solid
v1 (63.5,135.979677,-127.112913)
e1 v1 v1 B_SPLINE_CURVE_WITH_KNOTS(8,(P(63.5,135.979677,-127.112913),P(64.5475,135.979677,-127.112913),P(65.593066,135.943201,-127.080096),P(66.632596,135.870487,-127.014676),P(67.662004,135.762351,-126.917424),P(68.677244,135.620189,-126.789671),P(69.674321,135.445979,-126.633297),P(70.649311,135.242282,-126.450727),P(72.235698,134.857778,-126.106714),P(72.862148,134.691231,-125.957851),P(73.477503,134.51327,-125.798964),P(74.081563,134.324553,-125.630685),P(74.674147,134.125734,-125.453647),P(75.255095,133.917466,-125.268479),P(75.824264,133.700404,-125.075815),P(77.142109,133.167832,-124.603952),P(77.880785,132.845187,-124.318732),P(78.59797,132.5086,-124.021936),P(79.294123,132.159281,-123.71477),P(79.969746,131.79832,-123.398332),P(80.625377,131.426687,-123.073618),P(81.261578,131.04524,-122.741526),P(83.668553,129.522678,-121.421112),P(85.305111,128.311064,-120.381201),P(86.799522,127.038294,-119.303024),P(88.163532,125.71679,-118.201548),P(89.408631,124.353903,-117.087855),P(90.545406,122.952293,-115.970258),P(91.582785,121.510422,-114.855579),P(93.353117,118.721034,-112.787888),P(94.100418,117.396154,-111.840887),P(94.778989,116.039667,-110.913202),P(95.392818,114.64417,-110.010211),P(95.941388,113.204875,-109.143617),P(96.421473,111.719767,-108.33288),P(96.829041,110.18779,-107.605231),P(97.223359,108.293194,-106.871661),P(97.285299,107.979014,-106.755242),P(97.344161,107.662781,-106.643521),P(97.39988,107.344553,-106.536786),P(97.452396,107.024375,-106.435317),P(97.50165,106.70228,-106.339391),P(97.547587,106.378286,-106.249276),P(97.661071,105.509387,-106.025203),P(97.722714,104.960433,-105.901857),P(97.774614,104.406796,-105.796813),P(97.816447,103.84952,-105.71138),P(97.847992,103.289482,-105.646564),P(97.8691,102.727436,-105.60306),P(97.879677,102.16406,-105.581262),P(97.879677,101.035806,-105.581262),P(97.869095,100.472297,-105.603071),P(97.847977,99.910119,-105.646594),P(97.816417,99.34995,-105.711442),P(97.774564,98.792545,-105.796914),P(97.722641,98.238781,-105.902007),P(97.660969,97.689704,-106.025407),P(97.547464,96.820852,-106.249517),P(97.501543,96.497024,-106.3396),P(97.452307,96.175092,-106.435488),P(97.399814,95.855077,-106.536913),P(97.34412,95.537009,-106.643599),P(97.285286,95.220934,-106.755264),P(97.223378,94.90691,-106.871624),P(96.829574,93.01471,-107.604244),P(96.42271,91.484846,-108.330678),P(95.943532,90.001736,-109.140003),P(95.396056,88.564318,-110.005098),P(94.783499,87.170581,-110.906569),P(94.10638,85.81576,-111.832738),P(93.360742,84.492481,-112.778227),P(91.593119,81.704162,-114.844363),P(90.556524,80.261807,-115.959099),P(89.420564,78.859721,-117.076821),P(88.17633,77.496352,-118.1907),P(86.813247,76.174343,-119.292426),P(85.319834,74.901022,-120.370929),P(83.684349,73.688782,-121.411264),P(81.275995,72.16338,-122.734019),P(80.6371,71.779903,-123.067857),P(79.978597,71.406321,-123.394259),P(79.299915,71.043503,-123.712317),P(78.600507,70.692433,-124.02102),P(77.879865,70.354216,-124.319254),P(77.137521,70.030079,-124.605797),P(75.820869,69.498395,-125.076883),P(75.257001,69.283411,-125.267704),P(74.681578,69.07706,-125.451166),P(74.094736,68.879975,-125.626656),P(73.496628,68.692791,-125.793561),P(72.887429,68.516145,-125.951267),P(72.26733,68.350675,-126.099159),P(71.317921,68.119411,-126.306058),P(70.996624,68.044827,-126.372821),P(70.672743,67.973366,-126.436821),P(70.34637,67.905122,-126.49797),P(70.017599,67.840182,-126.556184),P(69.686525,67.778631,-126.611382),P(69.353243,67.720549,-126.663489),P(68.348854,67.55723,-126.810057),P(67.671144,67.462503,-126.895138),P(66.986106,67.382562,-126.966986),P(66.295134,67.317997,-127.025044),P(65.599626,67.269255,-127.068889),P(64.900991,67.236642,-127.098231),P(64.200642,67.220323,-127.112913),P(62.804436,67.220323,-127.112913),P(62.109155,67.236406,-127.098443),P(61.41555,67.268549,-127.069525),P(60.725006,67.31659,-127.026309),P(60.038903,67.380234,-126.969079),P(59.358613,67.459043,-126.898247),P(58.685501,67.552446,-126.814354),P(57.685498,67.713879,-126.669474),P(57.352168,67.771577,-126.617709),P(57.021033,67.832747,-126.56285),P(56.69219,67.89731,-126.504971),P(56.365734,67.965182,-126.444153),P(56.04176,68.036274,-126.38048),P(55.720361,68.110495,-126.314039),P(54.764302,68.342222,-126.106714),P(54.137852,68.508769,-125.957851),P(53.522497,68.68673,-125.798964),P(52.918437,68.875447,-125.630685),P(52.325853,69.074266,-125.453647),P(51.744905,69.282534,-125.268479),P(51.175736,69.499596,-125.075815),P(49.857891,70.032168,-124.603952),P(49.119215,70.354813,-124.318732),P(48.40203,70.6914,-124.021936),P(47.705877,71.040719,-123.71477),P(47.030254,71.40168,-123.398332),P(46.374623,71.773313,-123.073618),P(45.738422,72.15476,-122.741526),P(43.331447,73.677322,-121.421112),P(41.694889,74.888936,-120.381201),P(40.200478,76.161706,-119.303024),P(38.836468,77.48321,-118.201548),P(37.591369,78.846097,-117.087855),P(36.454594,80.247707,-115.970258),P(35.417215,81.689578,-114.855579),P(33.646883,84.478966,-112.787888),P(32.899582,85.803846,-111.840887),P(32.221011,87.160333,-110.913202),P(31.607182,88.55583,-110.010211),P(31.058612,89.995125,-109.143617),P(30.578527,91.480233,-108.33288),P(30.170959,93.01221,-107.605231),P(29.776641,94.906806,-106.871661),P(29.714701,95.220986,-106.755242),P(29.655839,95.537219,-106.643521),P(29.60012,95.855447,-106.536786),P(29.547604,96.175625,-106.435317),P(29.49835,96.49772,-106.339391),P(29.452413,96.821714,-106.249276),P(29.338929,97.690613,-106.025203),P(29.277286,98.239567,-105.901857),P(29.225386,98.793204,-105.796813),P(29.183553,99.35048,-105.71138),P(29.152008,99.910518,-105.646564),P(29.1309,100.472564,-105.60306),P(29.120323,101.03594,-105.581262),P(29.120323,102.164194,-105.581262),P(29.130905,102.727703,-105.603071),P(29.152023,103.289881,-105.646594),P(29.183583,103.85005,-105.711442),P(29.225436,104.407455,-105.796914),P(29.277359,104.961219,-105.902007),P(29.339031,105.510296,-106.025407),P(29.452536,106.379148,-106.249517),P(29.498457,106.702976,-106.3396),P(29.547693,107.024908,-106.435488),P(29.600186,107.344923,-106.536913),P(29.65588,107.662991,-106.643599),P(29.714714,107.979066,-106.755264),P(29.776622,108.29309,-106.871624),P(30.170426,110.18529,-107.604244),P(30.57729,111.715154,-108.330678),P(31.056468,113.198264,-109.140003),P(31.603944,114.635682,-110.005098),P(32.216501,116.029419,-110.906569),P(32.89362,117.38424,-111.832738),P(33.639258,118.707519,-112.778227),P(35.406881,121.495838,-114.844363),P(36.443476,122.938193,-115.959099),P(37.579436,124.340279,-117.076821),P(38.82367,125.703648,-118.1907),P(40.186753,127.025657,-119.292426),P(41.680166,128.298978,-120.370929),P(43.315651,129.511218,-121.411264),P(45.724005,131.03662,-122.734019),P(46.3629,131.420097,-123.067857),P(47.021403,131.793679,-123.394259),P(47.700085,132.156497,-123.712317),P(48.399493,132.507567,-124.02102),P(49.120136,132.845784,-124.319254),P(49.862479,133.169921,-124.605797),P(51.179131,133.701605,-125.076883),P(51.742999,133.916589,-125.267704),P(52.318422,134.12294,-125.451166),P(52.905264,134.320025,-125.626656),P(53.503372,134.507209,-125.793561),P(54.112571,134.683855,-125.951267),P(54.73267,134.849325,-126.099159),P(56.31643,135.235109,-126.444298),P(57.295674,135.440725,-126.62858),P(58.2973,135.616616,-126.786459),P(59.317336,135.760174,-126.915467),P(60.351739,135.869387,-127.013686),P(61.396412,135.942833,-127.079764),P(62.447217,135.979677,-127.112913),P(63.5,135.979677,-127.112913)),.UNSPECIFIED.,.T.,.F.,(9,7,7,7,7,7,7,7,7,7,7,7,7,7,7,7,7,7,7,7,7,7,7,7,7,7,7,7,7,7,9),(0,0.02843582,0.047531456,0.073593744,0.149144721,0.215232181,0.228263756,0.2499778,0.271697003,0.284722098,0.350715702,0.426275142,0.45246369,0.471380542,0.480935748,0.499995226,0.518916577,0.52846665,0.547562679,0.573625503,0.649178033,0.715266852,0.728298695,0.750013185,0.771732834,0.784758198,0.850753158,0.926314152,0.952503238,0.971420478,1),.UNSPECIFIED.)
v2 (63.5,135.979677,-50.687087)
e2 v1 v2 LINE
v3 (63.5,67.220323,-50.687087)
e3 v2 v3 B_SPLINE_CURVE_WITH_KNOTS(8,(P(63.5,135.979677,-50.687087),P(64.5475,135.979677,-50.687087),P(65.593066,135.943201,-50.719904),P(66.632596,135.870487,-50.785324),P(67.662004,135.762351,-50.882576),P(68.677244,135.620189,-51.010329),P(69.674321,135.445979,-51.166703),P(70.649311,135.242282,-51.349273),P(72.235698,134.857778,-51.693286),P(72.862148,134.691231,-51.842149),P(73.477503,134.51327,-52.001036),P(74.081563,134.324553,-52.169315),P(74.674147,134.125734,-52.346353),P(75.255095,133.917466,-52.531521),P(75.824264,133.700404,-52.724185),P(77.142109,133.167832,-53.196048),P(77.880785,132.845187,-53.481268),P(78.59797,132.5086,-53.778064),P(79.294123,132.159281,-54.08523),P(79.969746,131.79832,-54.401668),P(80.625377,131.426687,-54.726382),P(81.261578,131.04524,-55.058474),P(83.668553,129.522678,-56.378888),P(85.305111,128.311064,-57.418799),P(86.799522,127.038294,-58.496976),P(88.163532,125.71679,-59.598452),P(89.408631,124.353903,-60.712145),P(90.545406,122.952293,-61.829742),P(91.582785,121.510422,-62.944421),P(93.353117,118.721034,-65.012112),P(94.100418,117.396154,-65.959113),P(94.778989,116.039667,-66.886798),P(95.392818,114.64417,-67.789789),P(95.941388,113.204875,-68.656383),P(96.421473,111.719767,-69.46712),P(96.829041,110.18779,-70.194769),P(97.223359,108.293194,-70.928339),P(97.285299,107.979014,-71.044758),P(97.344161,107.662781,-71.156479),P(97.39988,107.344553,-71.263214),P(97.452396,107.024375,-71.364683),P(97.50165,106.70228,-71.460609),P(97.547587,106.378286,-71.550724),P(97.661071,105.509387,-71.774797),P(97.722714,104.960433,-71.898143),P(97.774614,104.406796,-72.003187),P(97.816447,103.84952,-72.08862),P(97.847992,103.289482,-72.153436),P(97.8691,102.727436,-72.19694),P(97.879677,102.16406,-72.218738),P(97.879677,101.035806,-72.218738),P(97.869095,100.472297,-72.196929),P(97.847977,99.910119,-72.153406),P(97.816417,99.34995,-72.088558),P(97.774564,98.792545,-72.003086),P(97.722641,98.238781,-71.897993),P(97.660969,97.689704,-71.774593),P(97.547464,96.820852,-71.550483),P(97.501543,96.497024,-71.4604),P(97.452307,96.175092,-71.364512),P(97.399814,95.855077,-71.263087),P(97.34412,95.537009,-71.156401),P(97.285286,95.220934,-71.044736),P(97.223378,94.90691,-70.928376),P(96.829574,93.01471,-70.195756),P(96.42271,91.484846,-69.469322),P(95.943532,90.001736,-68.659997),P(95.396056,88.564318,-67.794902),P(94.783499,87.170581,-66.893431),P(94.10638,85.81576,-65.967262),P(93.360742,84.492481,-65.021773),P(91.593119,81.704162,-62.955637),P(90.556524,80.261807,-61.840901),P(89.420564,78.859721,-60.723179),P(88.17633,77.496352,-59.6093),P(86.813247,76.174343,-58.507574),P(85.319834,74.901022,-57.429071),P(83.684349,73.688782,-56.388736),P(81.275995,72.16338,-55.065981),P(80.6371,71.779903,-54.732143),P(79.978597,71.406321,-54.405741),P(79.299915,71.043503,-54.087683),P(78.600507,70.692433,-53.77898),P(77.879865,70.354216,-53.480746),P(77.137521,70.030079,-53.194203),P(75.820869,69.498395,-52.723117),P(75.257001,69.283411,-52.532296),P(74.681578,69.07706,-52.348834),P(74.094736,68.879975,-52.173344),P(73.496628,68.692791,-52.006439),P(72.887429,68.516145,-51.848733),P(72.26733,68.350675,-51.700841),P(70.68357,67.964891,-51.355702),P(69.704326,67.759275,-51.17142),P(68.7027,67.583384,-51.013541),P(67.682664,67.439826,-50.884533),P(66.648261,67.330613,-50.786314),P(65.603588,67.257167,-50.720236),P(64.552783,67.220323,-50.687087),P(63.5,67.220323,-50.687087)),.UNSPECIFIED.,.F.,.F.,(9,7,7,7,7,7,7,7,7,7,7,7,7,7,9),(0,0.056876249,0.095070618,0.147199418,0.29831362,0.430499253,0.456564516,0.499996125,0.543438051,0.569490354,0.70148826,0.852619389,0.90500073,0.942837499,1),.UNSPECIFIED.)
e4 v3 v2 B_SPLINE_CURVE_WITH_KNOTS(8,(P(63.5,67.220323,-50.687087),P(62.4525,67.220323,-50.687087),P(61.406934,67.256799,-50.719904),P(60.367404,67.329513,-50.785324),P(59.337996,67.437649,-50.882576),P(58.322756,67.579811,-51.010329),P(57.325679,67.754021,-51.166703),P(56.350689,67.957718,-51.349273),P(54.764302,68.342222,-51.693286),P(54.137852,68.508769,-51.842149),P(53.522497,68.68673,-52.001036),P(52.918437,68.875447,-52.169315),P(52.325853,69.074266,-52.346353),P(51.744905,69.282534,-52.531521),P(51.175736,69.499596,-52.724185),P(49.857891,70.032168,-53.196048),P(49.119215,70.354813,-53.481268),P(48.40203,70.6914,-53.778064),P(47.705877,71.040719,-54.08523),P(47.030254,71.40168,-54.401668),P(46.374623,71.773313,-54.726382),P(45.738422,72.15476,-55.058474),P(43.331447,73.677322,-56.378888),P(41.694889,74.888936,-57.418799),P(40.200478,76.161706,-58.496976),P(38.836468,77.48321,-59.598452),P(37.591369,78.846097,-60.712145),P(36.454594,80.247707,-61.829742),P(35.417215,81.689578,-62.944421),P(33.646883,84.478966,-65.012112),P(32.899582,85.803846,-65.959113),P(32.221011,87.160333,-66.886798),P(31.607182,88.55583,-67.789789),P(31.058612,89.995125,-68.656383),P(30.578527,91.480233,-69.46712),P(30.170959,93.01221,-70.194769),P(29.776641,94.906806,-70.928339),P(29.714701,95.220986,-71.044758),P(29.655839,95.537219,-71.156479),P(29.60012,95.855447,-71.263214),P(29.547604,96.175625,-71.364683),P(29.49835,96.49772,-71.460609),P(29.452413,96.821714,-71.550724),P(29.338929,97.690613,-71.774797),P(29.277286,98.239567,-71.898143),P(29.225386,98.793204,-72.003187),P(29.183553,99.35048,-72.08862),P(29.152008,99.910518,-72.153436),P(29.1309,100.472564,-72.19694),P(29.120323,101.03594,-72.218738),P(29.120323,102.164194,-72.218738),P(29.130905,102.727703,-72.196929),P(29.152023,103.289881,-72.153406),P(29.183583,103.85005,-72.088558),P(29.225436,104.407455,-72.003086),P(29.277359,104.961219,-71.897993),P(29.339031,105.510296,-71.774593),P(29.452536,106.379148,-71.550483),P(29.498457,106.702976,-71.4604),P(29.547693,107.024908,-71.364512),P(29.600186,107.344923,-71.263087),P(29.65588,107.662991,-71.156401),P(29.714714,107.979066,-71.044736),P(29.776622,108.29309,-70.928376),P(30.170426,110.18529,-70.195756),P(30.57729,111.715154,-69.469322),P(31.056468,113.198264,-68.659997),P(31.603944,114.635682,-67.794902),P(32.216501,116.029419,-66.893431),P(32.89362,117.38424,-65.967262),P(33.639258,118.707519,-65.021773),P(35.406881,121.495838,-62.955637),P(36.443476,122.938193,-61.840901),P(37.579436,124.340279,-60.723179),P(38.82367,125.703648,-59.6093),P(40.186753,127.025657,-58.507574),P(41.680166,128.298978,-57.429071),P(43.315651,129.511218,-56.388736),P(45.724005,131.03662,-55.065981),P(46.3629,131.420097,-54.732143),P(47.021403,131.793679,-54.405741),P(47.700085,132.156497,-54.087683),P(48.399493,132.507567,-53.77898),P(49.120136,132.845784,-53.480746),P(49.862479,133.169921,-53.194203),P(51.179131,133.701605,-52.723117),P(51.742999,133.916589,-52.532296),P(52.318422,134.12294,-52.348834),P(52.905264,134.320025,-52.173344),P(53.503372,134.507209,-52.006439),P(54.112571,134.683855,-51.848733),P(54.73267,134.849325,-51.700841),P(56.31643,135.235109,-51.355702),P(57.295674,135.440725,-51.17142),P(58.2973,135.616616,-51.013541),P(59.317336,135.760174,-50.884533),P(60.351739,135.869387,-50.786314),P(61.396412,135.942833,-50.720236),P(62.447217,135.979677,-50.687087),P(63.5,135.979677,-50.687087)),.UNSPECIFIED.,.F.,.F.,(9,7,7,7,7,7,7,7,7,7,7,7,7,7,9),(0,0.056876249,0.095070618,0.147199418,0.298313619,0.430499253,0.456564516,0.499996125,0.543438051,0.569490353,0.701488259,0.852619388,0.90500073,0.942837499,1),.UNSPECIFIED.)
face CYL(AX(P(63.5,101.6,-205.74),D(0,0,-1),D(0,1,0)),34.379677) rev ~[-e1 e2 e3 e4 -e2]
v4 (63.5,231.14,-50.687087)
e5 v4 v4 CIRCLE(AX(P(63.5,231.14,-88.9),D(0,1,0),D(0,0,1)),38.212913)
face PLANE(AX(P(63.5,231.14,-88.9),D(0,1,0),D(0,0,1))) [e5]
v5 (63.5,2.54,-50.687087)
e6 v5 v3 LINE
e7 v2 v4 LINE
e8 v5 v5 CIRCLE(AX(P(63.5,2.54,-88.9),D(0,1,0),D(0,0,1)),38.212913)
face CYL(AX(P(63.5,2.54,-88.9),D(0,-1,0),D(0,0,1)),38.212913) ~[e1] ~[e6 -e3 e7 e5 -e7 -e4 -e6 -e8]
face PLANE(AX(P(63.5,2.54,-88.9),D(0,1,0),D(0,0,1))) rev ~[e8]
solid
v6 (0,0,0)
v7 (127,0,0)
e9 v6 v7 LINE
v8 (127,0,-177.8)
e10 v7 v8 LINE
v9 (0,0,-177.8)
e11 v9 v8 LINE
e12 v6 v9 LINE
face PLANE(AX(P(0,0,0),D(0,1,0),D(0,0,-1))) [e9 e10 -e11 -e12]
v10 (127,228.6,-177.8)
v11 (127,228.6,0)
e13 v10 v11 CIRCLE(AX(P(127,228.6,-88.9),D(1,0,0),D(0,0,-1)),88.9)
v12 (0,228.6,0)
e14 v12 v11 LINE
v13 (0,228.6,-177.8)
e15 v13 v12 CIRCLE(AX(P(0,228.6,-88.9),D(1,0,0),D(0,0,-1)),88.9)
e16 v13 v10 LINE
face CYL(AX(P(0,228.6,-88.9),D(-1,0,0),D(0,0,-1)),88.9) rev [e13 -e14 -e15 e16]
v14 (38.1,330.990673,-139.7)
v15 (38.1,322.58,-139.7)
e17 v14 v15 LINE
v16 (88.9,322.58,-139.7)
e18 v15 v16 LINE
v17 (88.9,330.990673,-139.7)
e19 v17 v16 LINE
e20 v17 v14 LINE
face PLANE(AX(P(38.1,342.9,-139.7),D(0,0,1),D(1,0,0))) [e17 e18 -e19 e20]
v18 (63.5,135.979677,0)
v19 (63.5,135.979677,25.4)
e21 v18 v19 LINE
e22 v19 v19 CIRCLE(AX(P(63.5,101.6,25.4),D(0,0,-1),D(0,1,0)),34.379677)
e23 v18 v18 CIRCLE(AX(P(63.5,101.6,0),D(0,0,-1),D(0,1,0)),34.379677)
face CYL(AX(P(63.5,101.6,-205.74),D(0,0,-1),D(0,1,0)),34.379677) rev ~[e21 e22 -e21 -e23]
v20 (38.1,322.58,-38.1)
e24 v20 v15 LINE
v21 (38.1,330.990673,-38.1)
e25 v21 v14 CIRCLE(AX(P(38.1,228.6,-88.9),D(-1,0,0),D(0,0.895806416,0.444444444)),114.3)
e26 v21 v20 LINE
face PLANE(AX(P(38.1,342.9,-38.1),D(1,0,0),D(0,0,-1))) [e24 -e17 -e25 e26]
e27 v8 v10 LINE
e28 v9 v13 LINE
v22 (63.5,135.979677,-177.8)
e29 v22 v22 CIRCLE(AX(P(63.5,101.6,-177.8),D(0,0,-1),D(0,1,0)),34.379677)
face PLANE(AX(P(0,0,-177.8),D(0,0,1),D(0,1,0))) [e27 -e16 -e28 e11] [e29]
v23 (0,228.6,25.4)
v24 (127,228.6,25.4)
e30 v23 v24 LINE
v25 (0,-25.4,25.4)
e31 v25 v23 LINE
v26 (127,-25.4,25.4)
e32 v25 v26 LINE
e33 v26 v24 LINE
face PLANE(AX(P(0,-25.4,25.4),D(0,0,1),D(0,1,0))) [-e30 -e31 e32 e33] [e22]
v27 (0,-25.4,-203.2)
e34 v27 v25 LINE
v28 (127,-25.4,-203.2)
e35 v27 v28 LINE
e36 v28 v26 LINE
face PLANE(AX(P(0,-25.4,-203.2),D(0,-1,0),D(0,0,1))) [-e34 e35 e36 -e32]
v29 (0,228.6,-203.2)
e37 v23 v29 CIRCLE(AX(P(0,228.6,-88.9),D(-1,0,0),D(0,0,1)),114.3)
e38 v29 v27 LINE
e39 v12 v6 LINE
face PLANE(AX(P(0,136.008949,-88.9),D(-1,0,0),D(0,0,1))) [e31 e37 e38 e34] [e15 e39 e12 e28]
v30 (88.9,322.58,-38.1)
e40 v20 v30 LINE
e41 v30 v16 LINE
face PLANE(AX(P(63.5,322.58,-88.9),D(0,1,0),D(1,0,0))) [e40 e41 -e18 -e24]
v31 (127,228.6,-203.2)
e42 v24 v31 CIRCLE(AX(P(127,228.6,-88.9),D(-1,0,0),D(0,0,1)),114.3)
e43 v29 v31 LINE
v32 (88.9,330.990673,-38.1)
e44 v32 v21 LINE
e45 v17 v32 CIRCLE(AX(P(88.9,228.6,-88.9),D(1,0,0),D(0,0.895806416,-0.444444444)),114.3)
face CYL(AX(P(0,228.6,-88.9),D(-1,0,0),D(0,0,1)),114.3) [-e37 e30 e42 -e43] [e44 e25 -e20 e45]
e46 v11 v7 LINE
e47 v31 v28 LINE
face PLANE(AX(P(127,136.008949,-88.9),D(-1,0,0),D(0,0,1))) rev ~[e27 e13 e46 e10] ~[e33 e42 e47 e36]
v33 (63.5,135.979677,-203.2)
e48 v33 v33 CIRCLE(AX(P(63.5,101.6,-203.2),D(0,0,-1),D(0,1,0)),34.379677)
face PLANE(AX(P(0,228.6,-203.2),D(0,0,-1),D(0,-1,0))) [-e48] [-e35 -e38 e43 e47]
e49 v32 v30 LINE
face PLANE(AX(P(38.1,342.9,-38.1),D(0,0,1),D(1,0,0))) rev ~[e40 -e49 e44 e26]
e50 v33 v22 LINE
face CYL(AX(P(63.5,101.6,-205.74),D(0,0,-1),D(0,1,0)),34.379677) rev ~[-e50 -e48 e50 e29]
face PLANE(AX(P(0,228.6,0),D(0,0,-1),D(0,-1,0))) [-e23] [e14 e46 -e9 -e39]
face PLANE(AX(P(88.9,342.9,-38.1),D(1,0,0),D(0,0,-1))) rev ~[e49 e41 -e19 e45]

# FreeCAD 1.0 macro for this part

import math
import FreeCAD as App
import Part
import Sketcher
from FreeCAD import Vector
Q = App.Units.Quantity

doc = App.newDocument("Part")
body = doc.addObject("PartDesign::Body", "Body")

sketch1 = body.newObject("Sketcher::SketchObject", "Sketch")
sketch1.AttachmentSupport = (doc.getObject("YZ_Plane"), [""])
sketch1.MapMode = "FlatFace"
sketch1.addGeometry(Part.LineSegment(Vector(229, 25, 0), Vector(-25, 25, 0)), False)
sketch1.addGeometry(Part.LineSegment(Vector(-25, 25, 0), Vector(-25, -203, 0)), False)
sketch1.addGeometry(Part.LineSegment(Vector(-25, -203, 0), Vector(229, -203, 0)), False)
sketch1.addGeometry(Part.ArcOfCircle(Part.Circle(Vector(229, -89, 0), Vector(0, 0, 1), 114), math.radians(-90), math.radians(90)), False)
sketch1.addGeometry(Part.LineSegment(Vector(0, 0, 0), Vector(229, 0, 0)), False)
sketch1.addGeometry(Part.ArcOfCircle(Part.Circle(Vector(229, -89, 0), Vector(0, 0, 1), 89), math.radians(-90), math.radians(90)), False)
sketch1.addGeometry(Part.LineSegment(Vector(229, -178, 0), Vector(0, -178, 0)), False)
sketch1.addGeometry(Part.LineSegment(Vector(0, -178, 0), Vector(0, 0, 0)), False)
sketch1.addConstraint(Sketcher.Constraint("Coincident", 0, 2, 1, 1))
sketch1.addConstraint(Sketcher.Constraint("Coincident", 1, 2, 2, 1))
sketch1.addConstraint(Sketcher.Constraint("Tangent", 2, 2, 3, 1))
sketch1.addConstraint(Sketcher.Constraint("Tangent", 3, 2, 0, 1))
sketch1.addConstraint(Sketcher.Constraint("Tangent", 4, 2, 5, 2))
sketch1.addConstraint(Sketcher.Constraint("Tangent", 5, 1, 6, 1))
sketch1.addConstraint(Sketcher.Constraint("Coincident", 6, 2, 7, 1))
sketch1.addConstraint(Sketcher.Constraint("Coincident", 7, 2, 4, 1))
sketch1.addConstraint(Sketcher.Constraint("Horizontal", 0))
sketch1.addConstraint(Sketcher.Constraint("Vertical", 1))
sketch1.addConstraint(Sketcher.Constraint("Horizontal", 2))
sketch1.addConstraint(Sketcher.Constraint("Horizontal", 4))
sketch1.addConstraint(Sketcher.Constraint("Horizontal", 6))
sketch1.addConstraint(Sketcher.Constraint("Vertical", 7))
sketch1.addConstraint(Sketcher.Constraint("Coincident", 7, 2, -1, 1))
sketch1.addConstraint(Sketcher.Constraint("Coincident", 5, 3, 3, 3))
sketch1.addConstraint(Sketcher.Constraint("Equal", 6, 1))
sketch1.addConstraint(Sketcher.Constraint("Radius", 3, Q("4.5 in")))
sketch1.addConstraint(Sketcher.Constraint("Radius", 5, Q("3.5 in")))
sketch1.addConstraint(Sketcher.Constraint("DistanceX", 0, 2, 0, 1, Q("10 in")))
pad1 = body.newObject("PartDesign::Pad", "Pad")
pad1.Profile = sketch1
pad1.Length = Q("5 in")

sketch2 = body.newObject("Sketcher::SketchObject", "Sketch001")
sketch2.AttachmentSupport = (doc.getObject("XZ_Plane"), [""])
sketch2.MapMode = "FlatFace"
sketch2.AttachmentOffset = App.Placement(Vector(0, 0, -13.5 * 25.4), App.Rotation())
sketch2.addGeometry(Part.LineSegment(Vector(38, -140, 0), Vector(38, -38, 0)), False)
sketch2.addGeometry(Part.LineSegment(Vector(38, -38, 0), Vector(89, -38, 0)), False)
sketch2.addGeometry(Part.LineSegment(Vector(89, -38, 0), Vector(89, -140, 0)), False)
sketch2.addGeometry(Part.LineSegment(Vector(89, -140, 0), Vector(38, -140, 0)), False)
sketch2.addConstraint(Sketcher.Constraint("Coincident", 0, 2, 1, 1))
sketch2.addConstraint(Sketcher.Constraint("Coincident", 1, 2, 2, 1))
sketch2.addConstraint(Sketcher.Constraint("Coincident", 2, 2, 3, 1))
sketch2.addConstraint(Sketcher.Constraint("Coincident", 3, 2, 0, 1))
sketch2.addConstraint(Sketcher.Constraint("Vertical", 0))
sketch2.addConstraint(Sketcher.Constraint("Horizontal", 1))
sketch2.addConstraint(Sketcher.Constraint("Vertical", 2))
sketch2.addConstraint(Sketcher.Constraint("Horizontal", 3))
sketch2.addConstraint(Sketcher.Constraint("DistanceX", 1, 1, 1, 2, Q("2 in")))
sketch2.addConstraint(Sketcher.Constraint("DistanceY", 0, 1, 0, 2, Q("4 in")))
sketch2.addConstraint(Sketcher.Constraint("DistanceX", -1, 1, 0, 2, Q("1.5 in")))
sketch2.addConstraint(Sketcher.Constraint("DistanceY", 0, 2, -1, 1, Q("1.5 in")))
pocket1 = body.newObject("PartDesign::Pocket", "Pocket")
pocket1.Profile = sketch2
pocket1.Length = Q("0.8 in")
pocket1.Reversed = True
body2 = doc.addObject("PartDesign::Body", "Body001")

sketch3 = body2.newObject("Sketcher::SketchObject", "Sketch002")
sketch3.AttachmentSupport = (doc.getObject("XZ_Plane001"), [""])
sketch3.MapMode = "FlatFace"
sketch3.AttachmentOffset = App.Placement(Vector(0, 0, -0.1 * 25.4), App.Rotation())
sketch3.addGeometry(Part.Circle(Vector(64, -89, 0), Vector(0, 0, 1), 38), False)
sketch3.addConstraint(Sketcher.Constraint("DistanceX", -1, 1, 0, 3, Q("2.5 in")))
sketch3.addConstraint(Sketcher.Constraint("DistanceY", 0, 3, -1, 1, Q("3.5 in")))
sketch3.addConstraint(Sketcher.Constraint("Diameter", 0, 76.425825))
pad2 = body2.newObject("PartDesign::Pad", "Pad001")
pad2.Profile = sketch3
pad2.Length = Q("9 in")
pad2.Reversed = True
body3 = doc.addObject("PartDesign::Body", "Body002")

sketch4 = body3.newObject("Sketcher::SketchObject", "Sketch003")
sketch4.AttachmentSupport = (doc.getObject("XY_Plane002"), [""])
sketch4.MapMode = "FlatFace"
sketch4.AttachmentOffset = App.Placement(Vector(0, 0, -8.1 * 25.4), App.Rotation())
sketch4.addGeometry(Part.Circle(Vector(64, 102, 0), Vector(0, 0, 1), 34), False)
sketch4.addConstraint(Sketcher.Constraint("DistanceY", -1, 1, 0, 3, Q("4 in")))
sketch4.addConstraint(Sketcher.Constraint("DistanceX", -1, 1, 0, 3, Q("2.5 in")))
sketch4.addConstraint(Sketcher.Constraint("Diameter", 0, 68.759354))
pad3 = body3.newObject("PartDesign::Pad", "Pad002")
pad3.Profile = sketch4
pad3.Length = 433.591158
doc.recompute()

body4 = doc.addObject("PartDesign::Body", "Body003")
body4.BaseFeature = body3
boolean = body.newObject("PartDesign::Boolean", "Boolean")
boolean.Type = "Cut"
boolean.addObjects([body4])
doc.recompute()

boolean2 = body2.newObject("PartDesign::Boolean", "Boolean001")
boolean2.Type = "Cut"
boolean2.addObjects([body3])

doc.recompute()
